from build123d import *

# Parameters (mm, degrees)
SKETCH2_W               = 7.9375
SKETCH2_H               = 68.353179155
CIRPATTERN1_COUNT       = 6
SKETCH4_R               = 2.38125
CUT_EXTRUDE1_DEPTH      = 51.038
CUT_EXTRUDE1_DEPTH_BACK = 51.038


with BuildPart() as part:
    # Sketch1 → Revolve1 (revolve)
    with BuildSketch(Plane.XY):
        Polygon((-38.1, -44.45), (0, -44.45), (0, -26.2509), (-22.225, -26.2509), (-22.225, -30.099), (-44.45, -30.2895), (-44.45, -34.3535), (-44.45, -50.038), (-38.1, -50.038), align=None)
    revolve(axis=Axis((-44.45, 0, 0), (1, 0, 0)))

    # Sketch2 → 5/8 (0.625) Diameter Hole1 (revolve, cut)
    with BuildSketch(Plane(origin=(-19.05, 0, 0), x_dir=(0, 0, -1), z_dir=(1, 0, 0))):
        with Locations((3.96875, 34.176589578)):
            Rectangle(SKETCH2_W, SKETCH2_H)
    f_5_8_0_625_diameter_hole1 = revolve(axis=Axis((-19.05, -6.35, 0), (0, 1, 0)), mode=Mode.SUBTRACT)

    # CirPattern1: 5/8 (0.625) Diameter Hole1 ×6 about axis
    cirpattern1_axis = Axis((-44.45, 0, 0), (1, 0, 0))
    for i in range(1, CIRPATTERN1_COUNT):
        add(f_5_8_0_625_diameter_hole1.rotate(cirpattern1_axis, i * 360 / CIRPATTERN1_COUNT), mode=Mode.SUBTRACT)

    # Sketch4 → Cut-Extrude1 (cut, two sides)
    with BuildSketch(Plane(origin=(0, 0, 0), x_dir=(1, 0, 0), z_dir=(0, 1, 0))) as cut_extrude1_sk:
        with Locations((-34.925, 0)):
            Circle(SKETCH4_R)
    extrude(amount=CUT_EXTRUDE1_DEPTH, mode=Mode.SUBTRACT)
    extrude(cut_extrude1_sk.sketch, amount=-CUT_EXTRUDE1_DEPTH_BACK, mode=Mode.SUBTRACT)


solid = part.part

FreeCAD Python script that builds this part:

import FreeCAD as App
import Part
import Sketcher

V = App.Vector
Q = App.Units.Quantity

doc = App.newDocument("Part")
params = doc.addObject("Spreadsheet::Sheet", "Params")
for row, (alias, value) in enumerate([
    ("sketch1_width", "1.5 in"),
    ("sketch1_width2", "0.25 in"),
    ("sketch1_height", "0.22 in"),
    ("sketch1_width3", "0.875 in"),
    ("revolution_angle", "360 deg"),
    ("sketch2_height", "0.3125 in"),
    ("groove_angle", "360 deg"),
    ("sketch3_diameter", "0.1875 in"),
], start=1):
    params.set(f"A{row}", alias)
    params.set(f"B{row}", "=" + value)
    params.setAlias(f"B{row}", alias)

body = doc.addObject("PartDesign::Body", "Body")

sketch1 = body.newObject("Sketcher::SketchObject", "Sketch")
sketch1.AttachmentSupport = (doc.getObject("XY_Plane"), [""])
sketch1.MapMode = "FlatFace"
sketch1.addGeometry([
    Part.LineSegment(V(-38.1, -44.45, 0), V(0, -44.45, 0)),
    Part.LineSegment(V(0, -44.45, 0), V(0, -26.2509, 0)),
    Part.LineSegment(V(0, -26.2509, 0), V(-22.225, -26.2509, 0)),
    Part.LineSegment(V(-22.225, -26.2509, 0), V(-22.225, -30.099, 0)),
    Part.LineSegment(V(-22.225, -30.099, 0), V(-44.45, -30.2895, 0)),
    Part.LineSegment(V(-44.45, -30.2895, 0), V(-44.45, -50.038, 0)),
    Part.LineSegment(V(-44.45, -50.038, 0), V(-38.1, -50.038, 0)),
    Part.LineSegment(V(-38.1, -50.038, 0), V(-38.1, -44.45, 0)),
], False)
sketch1.addConstraint([
    Sketcher.Constraint("Coincident", 0, 2, 1, 1),
    Sketcher.Constraint("Coincident", 1, 2, 2, 1),
    Sketcher.Constraint("Coincident", 2, 2, 3, 1),
    Sketcher.Constraint("Coincident", 3, 2, 4, 1),
    Sketcher.Constraint("Coincident", 4, 2, 5, 1),
    Sketcher.Constraint("Coincident", 5, 2, 6, 1),
    Sketcher.Constraint("Coincident", 6, 2, 7, 1),
    Sketcher.Constraint("Coincident", 7, 2, 0, 1),
    Sketcher.Constraint("Horizontal", 0),
    Sketcher.Constraint("Vertical", 1),
    Sketcher.Constraint("Horizontal", 2),
    Sketcher.Constraint("Vertical", 3),
    Sketcher.Constraint("Vertical", 5),
    Sketcher.Constraint("Horizontal", 6),
    Sketcher.Constraint("Vertical", 7),
    Sketcher.Constraint("PointOnObject", 0, 2, -2),
    Sketcher.Constraint("DistanceX", 0, 1, 0, 2, Q("1.5 in")),
    Sketcher.Constraint("DistanceX", 6, 1, 6, 2, Q("0.25 in")),
    Sketcher.Constraint("DistanceY", 7, 1, 7, 2, Q("0.22 in")),
    Sketcher.Constraint("DistanceX", 2, 2, 2, 1, Q("0.875 in")),
    Sketcher.Constraint("DistanceY", 0, 2, -1, 1, Q("1.75 in")),
    Sketcher.Constraint("DistanceY", 1, 1, 1, 2, Q("0.7165 in")),
    Sketcher.Constraint("DistanceY", 3, 2, 3, 1, Q("0.1515 in")),
    Sketcher.Constraint("DistanceY", 5, 2, 5, 1, Q("0.7775 in")),
])
sketch1.setExpression("Constraints[16]", "Params.sketch1_width")
sketch1.setExpression("Constraints[17]", "Params.sketch1_width2")
sketch1.setExpression("Constraints[18]", "Params.sketch1_height")
sketch1.setExpression("Constraints[19]", "Params.sketch1_width3")
revolution = body.newObject("PartDesign::Revolution", "Revolution")
revolution.Profile = sketch1
revolution.ReferenceAxis = (sketch1, ["H_Axis"])
revolution.setExpression("Angle", "Params.revolution_angle")

sketch2 = body.newObject("Sketcher::SketchObject", "Sketch001")
sketch2.AttachmentSupport = (doc.getObject("YZ_Plane"), [""])
sketch2.MapMode = "FlatFace"
sketch2.AttachmentOffset = App.Placement(V(0, 0, -0.75 * 25.4), App.Rotation())
sketch2.addGeometry([
    Part.LineSegment(V(68.353179, 0, 0), V(0, 0, 0)),
    Part.LineSegment(V(0, 0, 0), V(0, -7.9375, 0)),
    Part.LineSegment(V(0, -7.9375, 0), V(68.353179, -7.9375, 0)),
    Part.LineSegment(V(68.353179, -7.9375, 0), V(68.353179, 0, 0)),
], False)
sketch2.addConstraint([
    Sketcher.Constraint("Coincident", 0, 2, 1, 1),
    Sketcher.Constraint("Coincident", 1, 2, 2, 1),
    Sketcher.Constraint("Coincident", 2, 2, 3, 1),
    Sketcher.Constraint("Coincident", 3, 2, 0, 1),
    Sketcher.Constraint("Horizontal", 0),
    Sketcher.Constraint("Vertical", 1),
    Sketcher.Constraint("Horizontal", 2),
    Sketcher.Constraint("Vertical", 3),
    Sketcher.Constraint("Coincident", 0, 2, -1, 1),
    Sketcher.Constraint("DistanceY", 1, 2, 1, 1, Q("0.3125 in")),
    Sketcher.Constraint("DistanceX", 0, 2, 0, 1, 68.353179),
])
sketch2.setExpression("Constraints[9]", "Params.sketch2_height")
groove = body.newObject("PartDesign::Groove", "Groove")
groove.Profile = sketch2
groove.ReferenceAxis = (sketch2, ["H_Axis"])
groove.setExpression("Angle", "Params.groove_angle")
doc.recompute()

polarpattern = body.newObject("PartDesign::PolarPattern", "PolarPattern")
polarpattern.Originals = [groove]
polarpattern.Axis = (doc.getObject("X_Axis"), [""])
polarpattern.Angle = 360
polarpattern.Occurrences = 6
body.Tip = polarpattern

sketch3 = body.newObject("Sketcher::SketchObject", "Sketch002")
sketch3.AttachmentSupport = (doc.getObject("XZ_Plane"), [""])
sketch3.MapMode = "FlatFace"
sketch3.addGeometry(Part.Circle(V(-34.925, 0, 0), V(0, 0, 1), 2.38125), False)
sketch3.addConstraint([
    Sketcher.Constraint("PointOnObject", 0, 3, -1),
    Sketcher.Constraint("Diameter", 0, Q("0.1875 in")),
    Sketcher.Constraint("DistanceX", 0, 3, -1, 1, Q("1.375 in")),
])
sketch3.setExpression("Constraints[1]", "Params.sketch3_diameter")
pocket1 = body.newObject("PartDesign::Pocket", "Pocket")
pocket1.Profile = sketch3
pocket1.Type = "ThroughAll"
pocket1.Midplane = True

doc.recompute()
